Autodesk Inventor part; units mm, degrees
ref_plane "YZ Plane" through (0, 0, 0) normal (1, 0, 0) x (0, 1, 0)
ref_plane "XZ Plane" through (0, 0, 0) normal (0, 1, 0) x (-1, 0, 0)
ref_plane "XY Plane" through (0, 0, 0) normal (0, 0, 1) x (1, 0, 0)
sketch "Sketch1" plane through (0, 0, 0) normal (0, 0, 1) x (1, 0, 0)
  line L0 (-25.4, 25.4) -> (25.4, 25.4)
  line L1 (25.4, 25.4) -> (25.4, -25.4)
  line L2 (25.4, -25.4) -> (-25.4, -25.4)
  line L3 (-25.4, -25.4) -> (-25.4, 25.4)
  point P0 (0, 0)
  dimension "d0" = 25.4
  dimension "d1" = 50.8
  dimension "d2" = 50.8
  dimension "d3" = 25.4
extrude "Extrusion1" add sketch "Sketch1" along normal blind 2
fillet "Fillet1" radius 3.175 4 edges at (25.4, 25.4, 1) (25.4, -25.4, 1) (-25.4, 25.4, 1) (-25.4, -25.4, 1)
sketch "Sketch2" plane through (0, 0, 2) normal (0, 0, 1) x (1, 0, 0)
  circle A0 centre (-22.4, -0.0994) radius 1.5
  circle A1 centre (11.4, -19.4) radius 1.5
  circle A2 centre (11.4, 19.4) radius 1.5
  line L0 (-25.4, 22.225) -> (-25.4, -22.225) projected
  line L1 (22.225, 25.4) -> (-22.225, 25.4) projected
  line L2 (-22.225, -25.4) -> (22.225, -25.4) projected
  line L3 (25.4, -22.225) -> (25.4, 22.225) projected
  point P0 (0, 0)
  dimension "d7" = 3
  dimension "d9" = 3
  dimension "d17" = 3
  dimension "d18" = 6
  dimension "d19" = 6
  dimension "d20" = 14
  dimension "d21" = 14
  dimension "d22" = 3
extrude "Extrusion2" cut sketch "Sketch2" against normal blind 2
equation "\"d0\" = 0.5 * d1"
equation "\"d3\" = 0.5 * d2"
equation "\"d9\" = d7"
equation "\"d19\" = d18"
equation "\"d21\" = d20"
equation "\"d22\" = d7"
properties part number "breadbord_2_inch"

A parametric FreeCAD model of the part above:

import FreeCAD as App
import Part
import Sketcher

V = App.Vector
Q = App.Units.Quantity


def edges_at(feature, points):
    """Names of the edges that pass closest to the given points."""
    edges = feature.Shape.Edges
    near = lambda p: min(range(len(edges)), key=lambda i: edges[i].distToShape(Part.Vertex(*p))[0])
    return sorted({f"Edge{near(p) + 1}" for p in points})


def add_polygon(sketch, points):
    """Adds a closed chain of lines whose ends are joined by coincident constraints."""
    first, n = sketch.GeometryCount, len(points)
    for a, b in zip(points, points[1:] + points[:1]):
        sketch.addGeometry(Part.LineSegment(App.Vector(*a, 0), App.Vector(*b, 0)), False)
    for i in range(n):
        sketch.addConstraint(Sketcher.Constraint("Coincident", first + i, 2, first + (i + 1) % n, 1))

doc = App.newDocument("Part")
body = doc.addObject("PartDesign::Body", "Body")

# Sketch on XY plane
sketch1 = body.newObject("Sketcher::SketchObject", "Sketch")
sketch1.AttachmentSupport = (doc.getObject("XY_Plane"), [""])
sketch1.MapMode = "FlatFace"
add_polygon(sketch1, [(25.4, 25.4), (-25.4, 25.4), (-25.4, -25.4), (25.4, -25.4)])  # lines 0-3
sketch1.addConstraint(Sketcher.Constraint("Horizontal", 0))
sketch1.addConstraint(Sketcher.Constraint("Vertical", 1))
sketch1.addConstraint(Sketcher.Constraint("Horizontal", 2))
sketch1.addConstraint(Sketcher.Constraint("Vertical", 3))
sketch1.addConstraint(Sketcher.Constraint("Symmetric", 0, 2, 2, 2, -1, 1))
sketch1.addConstraint(Sketcher.Constraint("Equal", 2, 1))
sketch1.addConstraint(Sketcher.Constraint("DistanceX", 0, 2, 0, 1, Q("2 in")))
pad1 = body.newObject("PartDesign::Pad", "Pad")
pad1.Profile = sketch1
pad1.Length = 2
doc.recompute()

fillet = body.newObject("PartDesign::Fillet", "Fillet")
fillet.Base = (pad1, edges_at(pad1, [
    (25.4, 25.4, 1),
    (25.4, -25.4, 1),
    (-25.4, 25.4, 1),
    (-25.4, -25.4, 1),
]))
fillet.Radius = Q("0.125 in")

# Sketch on XY plane
sketch2 = body.newObject("Sketcher::SketchObject", "Sketch001")
sketch2.AttachmentSupport = (doc.getObject("XY_Plane"), [""])
sketch2.MapMode = "FlatFace"
sketch2.AttachmentOffset = App.Placement(V(0, 0, 2), App.Rotation())
sketch2.addGeometry(Part.Circle(V(-22.4, -0.0994, 0), V(0, 0, 1), 1.5), False)
sketch2.addGeometry(Part.Circle(V(11.4, -19.4, 0), V(0, 0, 1), 1.5), False)
sketch2.addGeometry(Part.Circle(V(11.4, 19.4, 0), V(0, 0, 1), 1.5), False)
sketch2.addConstraint(Sketcher.Constraint("Equal", 0, 1))
sketch2.addConstraint(Sketcher.Constraint("Equal", 1, 2))
sketch2.addConstraint(Sketcher.Constraint("Symmetric", 1, 3, 2, 3, -1))
sketch2.addConstraint(Sketcher.Constraint("Diameter", 0, Q("0.1181 in")))
sketch2.addConstraint(Sketcher.Constraint("DistanceX", 0, 3, -1, 1, Q("0.8819 in")))
sketch2.addConstraint(Sketcher.Constraint("DistanceX", 0, 3, 1, 3, Q("1.3307 in")))
sketch2.addConstraint(Sketcher.Constraint("DistanceY", 0, 3, 2, 3, Q("0.7677 in")))
sketch2.addConstraint(Sketcher.Constraint("DistanceY", 0, 3, -1, 1, 0.0994))
pocket1 = body.newObject("PartDesign::Pocket", "Pocket")
pocket1.Profile = sketch2
pocket1.Length = 2

doc.recompute()
